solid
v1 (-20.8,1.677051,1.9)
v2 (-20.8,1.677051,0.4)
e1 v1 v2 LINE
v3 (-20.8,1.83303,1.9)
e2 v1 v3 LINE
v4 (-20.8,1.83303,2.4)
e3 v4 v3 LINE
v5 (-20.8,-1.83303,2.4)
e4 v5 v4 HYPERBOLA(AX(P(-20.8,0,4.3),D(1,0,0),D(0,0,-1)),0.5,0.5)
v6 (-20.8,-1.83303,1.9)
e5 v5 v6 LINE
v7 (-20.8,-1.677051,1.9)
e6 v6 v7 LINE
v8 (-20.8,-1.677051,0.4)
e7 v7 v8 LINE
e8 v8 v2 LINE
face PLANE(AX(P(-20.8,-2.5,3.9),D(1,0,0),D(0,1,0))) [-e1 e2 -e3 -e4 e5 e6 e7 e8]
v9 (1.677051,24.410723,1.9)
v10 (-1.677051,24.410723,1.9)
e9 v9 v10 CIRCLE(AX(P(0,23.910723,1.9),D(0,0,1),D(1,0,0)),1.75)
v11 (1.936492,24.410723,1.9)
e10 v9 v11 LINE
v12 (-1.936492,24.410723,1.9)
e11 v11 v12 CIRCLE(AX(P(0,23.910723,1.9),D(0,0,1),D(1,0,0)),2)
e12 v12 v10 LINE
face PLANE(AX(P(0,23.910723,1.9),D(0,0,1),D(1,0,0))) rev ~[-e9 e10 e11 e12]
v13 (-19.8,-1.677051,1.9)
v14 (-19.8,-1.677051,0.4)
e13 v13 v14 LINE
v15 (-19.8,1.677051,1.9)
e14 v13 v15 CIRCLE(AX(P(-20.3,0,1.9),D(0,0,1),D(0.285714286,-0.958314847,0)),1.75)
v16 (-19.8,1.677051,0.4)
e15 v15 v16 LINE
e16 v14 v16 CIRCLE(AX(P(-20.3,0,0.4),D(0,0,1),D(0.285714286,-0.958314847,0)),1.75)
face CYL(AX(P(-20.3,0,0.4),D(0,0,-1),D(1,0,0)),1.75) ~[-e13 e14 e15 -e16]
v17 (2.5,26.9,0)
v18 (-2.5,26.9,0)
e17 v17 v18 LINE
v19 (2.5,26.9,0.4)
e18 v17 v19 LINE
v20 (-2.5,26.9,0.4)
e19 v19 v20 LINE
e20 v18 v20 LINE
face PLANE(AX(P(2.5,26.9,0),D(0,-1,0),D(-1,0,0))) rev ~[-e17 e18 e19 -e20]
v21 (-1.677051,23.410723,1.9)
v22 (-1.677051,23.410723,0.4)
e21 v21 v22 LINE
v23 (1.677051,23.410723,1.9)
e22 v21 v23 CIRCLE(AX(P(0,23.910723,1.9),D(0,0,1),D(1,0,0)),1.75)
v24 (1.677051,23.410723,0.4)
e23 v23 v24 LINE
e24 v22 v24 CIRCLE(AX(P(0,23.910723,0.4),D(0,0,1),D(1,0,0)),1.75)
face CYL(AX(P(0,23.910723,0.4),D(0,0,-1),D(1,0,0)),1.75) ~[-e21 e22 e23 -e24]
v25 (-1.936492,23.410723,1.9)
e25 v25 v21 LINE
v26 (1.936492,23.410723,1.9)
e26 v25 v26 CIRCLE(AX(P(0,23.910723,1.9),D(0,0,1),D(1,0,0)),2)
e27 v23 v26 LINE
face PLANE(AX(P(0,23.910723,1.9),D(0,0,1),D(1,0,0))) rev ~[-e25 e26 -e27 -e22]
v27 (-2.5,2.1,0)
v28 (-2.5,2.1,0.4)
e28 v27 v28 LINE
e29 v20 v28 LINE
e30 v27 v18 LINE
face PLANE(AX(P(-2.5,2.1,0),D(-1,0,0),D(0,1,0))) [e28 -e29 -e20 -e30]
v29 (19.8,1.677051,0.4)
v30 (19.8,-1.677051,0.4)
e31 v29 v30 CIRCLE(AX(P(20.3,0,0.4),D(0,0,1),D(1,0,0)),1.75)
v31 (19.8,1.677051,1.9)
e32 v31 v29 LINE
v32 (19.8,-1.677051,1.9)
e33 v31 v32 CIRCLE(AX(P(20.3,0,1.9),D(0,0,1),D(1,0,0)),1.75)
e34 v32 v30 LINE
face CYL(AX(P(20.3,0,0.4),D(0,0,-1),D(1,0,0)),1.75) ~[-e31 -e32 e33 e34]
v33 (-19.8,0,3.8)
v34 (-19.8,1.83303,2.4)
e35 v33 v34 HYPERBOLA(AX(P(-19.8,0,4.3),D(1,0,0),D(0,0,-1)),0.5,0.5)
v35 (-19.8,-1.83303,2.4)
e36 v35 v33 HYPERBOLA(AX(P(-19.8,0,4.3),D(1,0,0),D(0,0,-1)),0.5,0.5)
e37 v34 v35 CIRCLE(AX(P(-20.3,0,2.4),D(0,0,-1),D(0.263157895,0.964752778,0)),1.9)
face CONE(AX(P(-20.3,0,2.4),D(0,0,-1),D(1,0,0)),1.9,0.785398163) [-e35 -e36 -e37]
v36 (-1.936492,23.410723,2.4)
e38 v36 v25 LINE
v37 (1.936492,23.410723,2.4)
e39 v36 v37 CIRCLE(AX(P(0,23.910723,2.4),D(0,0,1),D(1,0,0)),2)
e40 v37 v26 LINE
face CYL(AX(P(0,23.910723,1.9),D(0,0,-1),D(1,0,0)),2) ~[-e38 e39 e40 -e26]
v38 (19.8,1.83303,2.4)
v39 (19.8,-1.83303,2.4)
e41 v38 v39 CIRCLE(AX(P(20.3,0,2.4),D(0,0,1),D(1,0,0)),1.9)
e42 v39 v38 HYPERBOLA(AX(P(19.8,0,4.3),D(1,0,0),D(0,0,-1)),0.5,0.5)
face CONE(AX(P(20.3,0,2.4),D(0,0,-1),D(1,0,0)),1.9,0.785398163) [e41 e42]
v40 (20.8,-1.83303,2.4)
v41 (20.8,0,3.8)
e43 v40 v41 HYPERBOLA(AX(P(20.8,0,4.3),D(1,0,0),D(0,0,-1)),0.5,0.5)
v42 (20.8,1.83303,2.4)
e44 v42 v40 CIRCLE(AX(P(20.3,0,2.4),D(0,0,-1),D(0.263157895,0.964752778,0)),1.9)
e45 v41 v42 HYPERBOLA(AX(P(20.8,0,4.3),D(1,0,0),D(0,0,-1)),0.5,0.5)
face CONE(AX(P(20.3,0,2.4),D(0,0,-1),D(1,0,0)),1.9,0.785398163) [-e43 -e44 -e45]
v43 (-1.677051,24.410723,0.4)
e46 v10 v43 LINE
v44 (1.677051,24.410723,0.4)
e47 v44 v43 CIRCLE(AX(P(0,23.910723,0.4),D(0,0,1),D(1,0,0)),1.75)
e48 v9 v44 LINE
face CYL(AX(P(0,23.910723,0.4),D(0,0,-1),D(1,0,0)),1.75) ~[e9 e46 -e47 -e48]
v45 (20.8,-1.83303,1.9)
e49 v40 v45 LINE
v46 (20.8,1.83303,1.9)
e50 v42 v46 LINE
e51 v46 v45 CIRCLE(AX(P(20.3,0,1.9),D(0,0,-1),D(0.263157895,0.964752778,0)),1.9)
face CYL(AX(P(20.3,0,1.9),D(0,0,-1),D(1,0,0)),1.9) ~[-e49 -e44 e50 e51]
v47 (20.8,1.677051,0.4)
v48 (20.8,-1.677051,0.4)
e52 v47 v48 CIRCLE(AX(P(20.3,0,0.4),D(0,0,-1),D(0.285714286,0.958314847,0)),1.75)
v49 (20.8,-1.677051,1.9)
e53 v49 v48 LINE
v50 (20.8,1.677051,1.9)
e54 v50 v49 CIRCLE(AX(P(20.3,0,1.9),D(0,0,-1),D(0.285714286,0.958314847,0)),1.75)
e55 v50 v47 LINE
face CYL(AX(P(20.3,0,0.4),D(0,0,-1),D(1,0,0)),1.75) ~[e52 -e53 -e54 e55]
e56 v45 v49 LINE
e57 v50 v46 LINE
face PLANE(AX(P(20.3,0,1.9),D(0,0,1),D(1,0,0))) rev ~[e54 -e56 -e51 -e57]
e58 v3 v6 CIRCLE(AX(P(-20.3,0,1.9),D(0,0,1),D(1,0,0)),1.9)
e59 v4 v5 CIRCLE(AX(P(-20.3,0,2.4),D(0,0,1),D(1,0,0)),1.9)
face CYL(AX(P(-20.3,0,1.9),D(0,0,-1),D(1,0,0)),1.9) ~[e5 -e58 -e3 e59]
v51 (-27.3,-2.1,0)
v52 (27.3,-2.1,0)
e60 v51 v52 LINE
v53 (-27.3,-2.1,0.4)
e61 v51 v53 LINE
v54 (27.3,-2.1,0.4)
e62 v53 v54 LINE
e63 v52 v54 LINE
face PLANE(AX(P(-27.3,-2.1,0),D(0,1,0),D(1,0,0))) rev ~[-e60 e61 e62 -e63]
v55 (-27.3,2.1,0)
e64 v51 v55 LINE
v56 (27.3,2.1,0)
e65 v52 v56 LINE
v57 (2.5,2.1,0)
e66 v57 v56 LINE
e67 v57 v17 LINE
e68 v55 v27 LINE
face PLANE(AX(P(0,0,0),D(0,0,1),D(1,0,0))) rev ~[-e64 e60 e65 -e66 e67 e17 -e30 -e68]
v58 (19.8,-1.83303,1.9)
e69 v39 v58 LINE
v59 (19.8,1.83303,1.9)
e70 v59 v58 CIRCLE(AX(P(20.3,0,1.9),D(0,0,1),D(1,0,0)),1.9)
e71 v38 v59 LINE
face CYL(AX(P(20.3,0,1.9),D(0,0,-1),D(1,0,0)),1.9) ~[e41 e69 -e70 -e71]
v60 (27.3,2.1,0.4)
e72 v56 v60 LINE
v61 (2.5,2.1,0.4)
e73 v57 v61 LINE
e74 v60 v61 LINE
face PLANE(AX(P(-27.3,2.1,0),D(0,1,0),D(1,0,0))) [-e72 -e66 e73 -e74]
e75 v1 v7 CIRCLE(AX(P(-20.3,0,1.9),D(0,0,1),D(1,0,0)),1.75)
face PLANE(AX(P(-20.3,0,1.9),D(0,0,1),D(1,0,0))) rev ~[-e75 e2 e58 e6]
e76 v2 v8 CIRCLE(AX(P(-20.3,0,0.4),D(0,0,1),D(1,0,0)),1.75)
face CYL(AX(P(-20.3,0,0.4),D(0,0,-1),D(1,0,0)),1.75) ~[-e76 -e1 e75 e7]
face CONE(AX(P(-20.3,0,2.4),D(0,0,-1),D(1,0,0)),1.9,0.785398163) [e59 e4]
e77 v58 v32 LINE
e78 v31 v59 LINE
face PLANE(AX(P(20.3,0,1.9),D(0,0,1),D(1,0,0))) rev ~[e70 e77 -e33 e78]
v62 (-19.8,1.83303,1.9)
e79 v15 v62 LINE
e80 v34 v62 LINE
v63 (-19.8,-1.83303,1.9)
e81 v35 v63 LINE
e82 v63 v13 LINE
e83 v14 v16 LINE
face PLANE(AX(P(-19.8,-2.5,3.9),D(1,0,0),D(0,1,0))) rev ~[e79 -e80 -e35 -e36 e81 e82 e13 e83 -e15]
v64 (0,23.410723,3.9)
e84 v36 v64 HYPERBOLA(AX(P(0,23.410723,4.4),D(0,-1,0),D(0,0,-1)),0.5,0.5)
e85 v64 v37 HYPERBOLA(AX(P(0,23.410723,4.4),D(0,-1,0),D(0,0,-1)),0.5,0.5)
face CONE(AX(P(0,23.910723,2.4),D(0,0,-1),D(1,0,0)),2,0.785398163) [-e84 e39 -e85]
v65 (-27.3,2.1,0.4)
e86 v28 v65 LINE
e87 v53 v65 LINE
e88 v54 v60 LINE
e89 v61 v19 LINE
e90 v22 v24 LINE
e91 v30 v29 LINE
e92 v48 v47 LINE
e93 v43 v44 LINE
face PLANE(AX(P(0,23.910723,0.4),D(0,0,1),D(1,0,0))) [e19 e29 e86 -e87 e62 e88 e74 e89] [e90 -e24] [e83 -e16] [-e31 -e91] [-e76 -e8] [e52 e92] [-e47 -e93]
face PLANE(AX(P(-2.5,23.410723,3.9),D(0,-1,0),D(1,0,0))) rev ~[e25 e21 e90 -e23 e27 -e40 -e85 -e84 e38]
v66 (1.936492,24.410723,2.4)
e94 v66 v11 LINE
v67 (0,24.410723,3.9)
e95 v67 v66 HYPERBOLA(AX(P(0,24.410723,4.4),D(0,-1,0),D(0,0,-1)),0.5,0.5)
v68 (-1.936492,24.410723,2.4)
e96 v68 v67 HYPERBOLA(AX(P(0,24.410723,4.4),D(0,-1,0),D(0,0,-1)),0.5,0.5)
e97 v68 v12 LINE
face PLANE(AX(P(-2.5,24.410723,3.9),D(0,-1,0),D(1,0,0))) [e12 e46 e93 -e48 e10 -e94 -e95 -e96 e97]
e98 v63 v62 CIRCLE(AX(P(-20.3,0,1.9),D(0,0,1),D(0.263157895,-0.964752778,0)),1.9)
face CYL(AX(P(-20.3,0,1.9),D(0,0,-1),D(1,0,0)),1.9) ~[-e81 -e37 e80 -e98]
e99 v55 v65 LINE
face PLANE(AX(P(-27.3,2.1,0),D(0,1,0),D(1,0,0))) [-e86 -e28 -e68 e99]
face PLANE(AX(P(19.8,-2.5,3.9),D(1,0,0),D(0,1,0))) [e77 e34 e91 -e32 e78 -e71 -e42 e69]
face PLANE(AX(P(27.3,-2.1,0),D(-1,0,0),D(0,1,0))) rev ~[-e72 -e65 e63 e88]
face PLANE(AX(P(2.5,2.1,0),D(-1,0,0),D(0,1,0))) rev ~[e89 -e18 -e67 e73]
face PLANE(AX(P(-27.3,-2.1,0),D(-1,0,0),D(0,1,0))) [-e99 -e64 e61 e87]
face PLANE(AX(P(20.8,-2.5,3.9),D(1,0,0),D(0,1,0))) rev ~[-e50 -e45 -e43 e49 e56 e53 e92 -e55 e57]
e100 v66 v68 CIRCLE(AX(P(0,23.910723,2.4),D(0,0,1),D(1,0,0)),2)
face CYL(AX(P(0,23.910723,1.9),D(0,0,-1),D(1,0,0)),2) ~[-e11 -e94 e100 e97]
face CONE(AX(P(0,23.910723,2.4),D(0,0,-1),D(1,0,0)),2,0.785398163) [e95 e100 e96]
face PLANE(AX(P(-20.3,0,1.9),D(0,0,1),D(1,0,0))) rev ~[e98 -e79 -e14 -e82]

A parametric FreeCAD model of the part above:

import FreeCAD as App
import Part
import Sketcher

V = App.Vector
Q = App.Units.Quantity


def edges_at(feature, points):
    """Names of the edges that pass closest to the given points."""
    edges = feature.Shape.Edges
    near = lambda p: min(range(len(edges)), key=lambda i: edges[i].distToShape(Part.Vertex(*p))[0])
    return sorted({f"Edge{near(p) + 1}" for p in points})


def add_polygon(sketch, points):
    """Adds a closed chain of lines whose ends are joined by coincident constraints."""
    first, n = sketch.GeometryCount, len(points)
    for a, b in zip(points, points[1:] + points[:1]):
        sketch.addGeometry(Part.LineSegment(App.Vector(*a, 0), App.Vector(*b, 0)), False)
    for i in range(n):
        sketch.addConstraint(Sketcher.Constraint("Coincident", first + i, 2, first + (i + 1) % n, 1))

doc = App.newDocument("Part")
body = doc.addObject("PartDesign::Body", "Body")

sketch1 = body.newObject("Sketcher::SketchObject", "Sketch")
sketch1.AttachmentSupport = (doc.getObject("XY_Plane"), [""])
sketch1.MapMode = "FlatFace"
add_polygon(sketch1, [(-27.3, 2.1), (-27.3, -2.1), (27.3, -2.1), (27.3, 2.1)])
sketch1.addConstraint([
    Sketcher.Constraint("Vertical", 0),
    Sketcher.Constraint("Horizontal", 1),
    Sketcher.Constraint("Vertical", 2),
    Sketcher.Constraint("Horizontal", 3),
    Sketcher.Constraint("Symmetric", 0, 2, 2, 2, -1, 1),
    Sketcher.Constraint("DistanceX", 1, 1, 1, 2, Q("54.6 mm")),
    Sketcher.Constraint("DistanceY", 0, 2, 0, 1, Q("4.2 mm")),
])
pad1 = body.newObject("PartDesign::Pad", "Pad")
pad1.Profile = sketch1
pad1.Length = 0.4

sketch2 = body.newObject("Sketcher::SketchObject", "Sketch001")
sketch2.AttachmentSupport = (doc.getObject("XY_Plane"), [""])
sketch2.MapMode = "FlatFace"
sketch2.AttachmentOffset = App.Placement(V(0, 0, 0.4), App.Rotation())
sketch2.addGeometry([
    Part.Circle(V(-20.3, 0, 0), V(0, 0, 1), 1.75),
    Part.Circle(V(20.3, 0, 0), V(0, 0, 1), 1.75),
], False)
sketch2.addConstraint([
    Sketcher.Constraint("Equal", 0, 1),
    Sketcher.Constraint("Symmetric", 0, 3, 1, 3, -1, 1),
    Sketcher.Constraint("PointOnObject", 0, 3, -1),
    Sketcher.Constraint("Diameter", 0, Q("3.5 mm")),
    Sketcher.Constraint("DistanceX", 0, 3, -1, 1, Q("20.3 mm")),
])
pad2 = body.newObject("PartDesign::Pad", "Pad001")
pad2.Profile = sketch2
pad2.Length = 1.5

sketch3 = body.newObject("Sketcher::SketchObject", "Sketch002")
sketch3.AttachmentSupport = (doc.getObject("XY_Plane"), [""])
sketch3.MapMode = "FlatFace"
sketch3.AttachmentOffset = App.Placement(V(0, 0, 1.9), App.Rotation())
sketch3.addGeometry([
    Part.Circle(V(-20.3, 0, 0), V(0, 0, 1), 1.9),
    Part.Circle(V(20.3, 0, 0), V(0, 0, 1), 1.9),
], False)
sketch3.addConstraint([
    Sketcher.Constraint("Equal", 0, 1),
    Sketcher.Constraint("Symmetric", 0, 3, 1, 3, -1, 1),
    Sketcher.Constraint("PointOnObject", 0, 3, -1),
    Sketcher.Constraint("Diameter", 0, Q("3.8 mm")),
    Sketcher.Constraint("DistanceX", 0, 3, -1, 1, Q("20.3 mm")),
])
pad3 = body.newObject("PartDesign::Pad", "Pad002")
pad3.Profile = sketch3
pad3.Length = 2
doc.recompute()

chamfer = body.newObject("PartDesign::Chamfer", "Chamfer")
chamfer.Base = (pad3, edges_at(pad3, [(-22.2, 0, 3.9), (18.4, 0, 3.9)]))
chamfer.Size = 1.5

sketch4 = body.newObject("Sketcher::SketchObject", "Sketch003")
sketch4.AttachmentSupport = (doc.getObject("XY_Plane"), [""])
sketch4.MapMode = "FlatFace"
sketch4.AttachmentOffset = App.Placement(V(0, 0, 3.9), App.Rotation())
add_polygon(sketch4, [(-20.8, 2.5), (-20.8, -2.5), (-19.8, -2.5), (-19.8, 2.5)])
add_polygon(sketch4, [(19.8, 2.5), (19.8, -2.5), (20.8, -2.5), (20.8, 2.5)])
sketch4.addConstraint([
    Sketcher.Constraint("Vertical", 0),
    Sketcher.Constraint("Horizontal", 1),
    Sketcher.Constraint("Vertical", 2),
    Sketcher.Constraint("Horizontal", 3),
    Sketcher.Constraint("Vertical", 4),
    Sketcher.Constraint("Horizontal", 5),
    Sketcher.Constraint("Vertical", 6),
    Sketcher.Constraint("Horizontal", 7),
    Sketcher.Constraint("Symmetric", 2, 2, 4, 2, -1, 1),
    Sketcher.Constraint("Symmetric", 0, 2, 6, 2, -1, 1),
    Sketcher.Constraint("Horizontal", 1, 2, 4, 2),
    Sketcher.Constraint("DistanceX", 1, 1, 1, 2, Q("1 mm")),
    Sketcher.Constraint("DistanceY", 0, 2, 0, 1, Q("5 mm")),
    Sketcher.Constraint("DistanceX", 0, 2, -1, 1, Q("20.8 mm")),
])
pocket1 = body.newObject("PartDesign::Pocket", "Pocket")
pocket1.Profile = sketch4
pocket1.Length = 3.5

sketch5 = body.newObject("Sketcher::SketchObject", "Sketch004")
sketch5.AttachmentSupport = (doc.getObject("XY_Plane"), [""])
sketch5.MapMode = "FlatFace"
add_polygon(sketch5, [(2.5, 26.9), (2.5, 2.1), (-2.5, 2.1), (-2.5, 26.9)])
sketch5.addConstraint([
    Sketcher.Constraint("Vertical", 0),
    Sketcher.Constraint("Horizontal", 1),
    Sketcher.Constraint("Vertical", 2),
    Sketcher.Constraint("Horizontal", 3),
    Sketcher.Constraint("DistanceX", 1, 2, 1, 1, Q("5 mm")),
    Sketcher.Constraint("DistanceY", 0, 2, 0, 1, Q("24.8 mm")),
    Sketcher.Constraint("DistanceX", -1, 1, 0, 2, Q("2.5 mm")),
    Sketcher.Constraint("DistanceY", -1, 1, 0, 2, Q("2.1 mm")),
])
pad4 = body.newObject("PartDesign::Pad", "Pad003")
pad4.Profile = sketch5
pad4.Length = 0.4

sketch6 = body.newObject("Sketcher::SketchObject", "Sketch005")
sketch6.AttachmentSupport = (doc.getObject("XY_Plane"), [""])
sketch6.MapMode = "FlatFace"
sketch6.AttachmentOffset = App.Placement(V(0, 0, 0.4), App.Rotation())
sketch6.addGeometry(Part.Circle(V(0, 23.910723, 0), V(0, 0, 1), 1.75), False)
sketch6.addConstraint([
    Sketcher.Constraint("PointOnObject", 0, 3, -2),
    Sketcher.Constraint("Diameter", 0, Q("3.5 mm")),
    Sketcher.Constraint("DistanceY", -1, 1, 0, 3, Q("23.910723 mm")),
])
pad5 = body.newObject("PartDesign::Pad", "Pad004")
pad5.Profile = sketch6
pad5.Length = 1.5

sketch7 = body.newObject("Sketcher::SketchObject", "Sketch006")
sketch7.AttachmentSupport = (doc.getObject("XY_Plane"), [""])
sketch7.MapMode = "FlatFace"
sketch7.AttachmentOffset = App.Placement(V(0, 0, 1.9), App.Rotation())
sketch7.addGeometry(Part.Circle(V(0, 23.910723, 0), V(0, 0, 1), 2), False)
sketch7.addConstraint([
    Sketcher.Constraint("PointOnObject", 0, 3, -2),
    Sketcher.Constraint("Diameter", 0, Q("4 mm")),
    Sketcher.Constraint("DistanceY", -1, 1, 0, 3, Q("23.910723 mm")),
])
pad6 = body.newObject("PartDesign::Pad", "Pad005")
pad6.Profile = sketch7
pad6.Length = 2
doc.recompute()

chamfer2 = body.newObject("PartDesign::Chamfer", "Chamfer001")
chamfer2.Base = (pad6, edges_at(pad6, [(-2, 23.911, 3.9)]))
chamfer2.Size = 1.5

sketch8 = body.newObject("Sketcher::SketchObject", "Sketch007")
sketch8.AttachmentSupport = (doc.getObject("XY_Plane"), [""])
sketch8.MapMode = "FlatFace"
sketch8.AttachmentOffset = App.Placement(V(0, 0, 3.9), App.Rotation())
add_polygon(sketch8, [(-2.5, 24.410723), (-2.5, 23.410723), (2.5, 23.410723), (2.5, 24.410723)])
sketch8.addConstraint([
    Sketcher.Constraint("Vertical", 0),
    Sketcher.Constraint("Horizontal", 1),
    Sketcher.Constraint("Vertical", 2),
    Sketcher.Constraint("Horizontal", 3),
    Sketcher.Constraint("DistanceX", 1, 1, 1, 2, Q("5 mm")),
    Sketcher.Constraint("DistanceY", 0, 2, 0, 1, Q("1 mm")),
    Sketcher.Constraint("DistanceX", 0, 2, -1, 1, Q("2.5 mm")),
    Sketcher.Constraint("DistanceY", -1, 1, 0, 2, Q("23.410723 mm")),
])
pocket2 = body.newObject("PartDesign::Pocket", "Pocket001")
pocket2.Profile = sketch8
pocket2.Length = 3.5

doc.recompute()
